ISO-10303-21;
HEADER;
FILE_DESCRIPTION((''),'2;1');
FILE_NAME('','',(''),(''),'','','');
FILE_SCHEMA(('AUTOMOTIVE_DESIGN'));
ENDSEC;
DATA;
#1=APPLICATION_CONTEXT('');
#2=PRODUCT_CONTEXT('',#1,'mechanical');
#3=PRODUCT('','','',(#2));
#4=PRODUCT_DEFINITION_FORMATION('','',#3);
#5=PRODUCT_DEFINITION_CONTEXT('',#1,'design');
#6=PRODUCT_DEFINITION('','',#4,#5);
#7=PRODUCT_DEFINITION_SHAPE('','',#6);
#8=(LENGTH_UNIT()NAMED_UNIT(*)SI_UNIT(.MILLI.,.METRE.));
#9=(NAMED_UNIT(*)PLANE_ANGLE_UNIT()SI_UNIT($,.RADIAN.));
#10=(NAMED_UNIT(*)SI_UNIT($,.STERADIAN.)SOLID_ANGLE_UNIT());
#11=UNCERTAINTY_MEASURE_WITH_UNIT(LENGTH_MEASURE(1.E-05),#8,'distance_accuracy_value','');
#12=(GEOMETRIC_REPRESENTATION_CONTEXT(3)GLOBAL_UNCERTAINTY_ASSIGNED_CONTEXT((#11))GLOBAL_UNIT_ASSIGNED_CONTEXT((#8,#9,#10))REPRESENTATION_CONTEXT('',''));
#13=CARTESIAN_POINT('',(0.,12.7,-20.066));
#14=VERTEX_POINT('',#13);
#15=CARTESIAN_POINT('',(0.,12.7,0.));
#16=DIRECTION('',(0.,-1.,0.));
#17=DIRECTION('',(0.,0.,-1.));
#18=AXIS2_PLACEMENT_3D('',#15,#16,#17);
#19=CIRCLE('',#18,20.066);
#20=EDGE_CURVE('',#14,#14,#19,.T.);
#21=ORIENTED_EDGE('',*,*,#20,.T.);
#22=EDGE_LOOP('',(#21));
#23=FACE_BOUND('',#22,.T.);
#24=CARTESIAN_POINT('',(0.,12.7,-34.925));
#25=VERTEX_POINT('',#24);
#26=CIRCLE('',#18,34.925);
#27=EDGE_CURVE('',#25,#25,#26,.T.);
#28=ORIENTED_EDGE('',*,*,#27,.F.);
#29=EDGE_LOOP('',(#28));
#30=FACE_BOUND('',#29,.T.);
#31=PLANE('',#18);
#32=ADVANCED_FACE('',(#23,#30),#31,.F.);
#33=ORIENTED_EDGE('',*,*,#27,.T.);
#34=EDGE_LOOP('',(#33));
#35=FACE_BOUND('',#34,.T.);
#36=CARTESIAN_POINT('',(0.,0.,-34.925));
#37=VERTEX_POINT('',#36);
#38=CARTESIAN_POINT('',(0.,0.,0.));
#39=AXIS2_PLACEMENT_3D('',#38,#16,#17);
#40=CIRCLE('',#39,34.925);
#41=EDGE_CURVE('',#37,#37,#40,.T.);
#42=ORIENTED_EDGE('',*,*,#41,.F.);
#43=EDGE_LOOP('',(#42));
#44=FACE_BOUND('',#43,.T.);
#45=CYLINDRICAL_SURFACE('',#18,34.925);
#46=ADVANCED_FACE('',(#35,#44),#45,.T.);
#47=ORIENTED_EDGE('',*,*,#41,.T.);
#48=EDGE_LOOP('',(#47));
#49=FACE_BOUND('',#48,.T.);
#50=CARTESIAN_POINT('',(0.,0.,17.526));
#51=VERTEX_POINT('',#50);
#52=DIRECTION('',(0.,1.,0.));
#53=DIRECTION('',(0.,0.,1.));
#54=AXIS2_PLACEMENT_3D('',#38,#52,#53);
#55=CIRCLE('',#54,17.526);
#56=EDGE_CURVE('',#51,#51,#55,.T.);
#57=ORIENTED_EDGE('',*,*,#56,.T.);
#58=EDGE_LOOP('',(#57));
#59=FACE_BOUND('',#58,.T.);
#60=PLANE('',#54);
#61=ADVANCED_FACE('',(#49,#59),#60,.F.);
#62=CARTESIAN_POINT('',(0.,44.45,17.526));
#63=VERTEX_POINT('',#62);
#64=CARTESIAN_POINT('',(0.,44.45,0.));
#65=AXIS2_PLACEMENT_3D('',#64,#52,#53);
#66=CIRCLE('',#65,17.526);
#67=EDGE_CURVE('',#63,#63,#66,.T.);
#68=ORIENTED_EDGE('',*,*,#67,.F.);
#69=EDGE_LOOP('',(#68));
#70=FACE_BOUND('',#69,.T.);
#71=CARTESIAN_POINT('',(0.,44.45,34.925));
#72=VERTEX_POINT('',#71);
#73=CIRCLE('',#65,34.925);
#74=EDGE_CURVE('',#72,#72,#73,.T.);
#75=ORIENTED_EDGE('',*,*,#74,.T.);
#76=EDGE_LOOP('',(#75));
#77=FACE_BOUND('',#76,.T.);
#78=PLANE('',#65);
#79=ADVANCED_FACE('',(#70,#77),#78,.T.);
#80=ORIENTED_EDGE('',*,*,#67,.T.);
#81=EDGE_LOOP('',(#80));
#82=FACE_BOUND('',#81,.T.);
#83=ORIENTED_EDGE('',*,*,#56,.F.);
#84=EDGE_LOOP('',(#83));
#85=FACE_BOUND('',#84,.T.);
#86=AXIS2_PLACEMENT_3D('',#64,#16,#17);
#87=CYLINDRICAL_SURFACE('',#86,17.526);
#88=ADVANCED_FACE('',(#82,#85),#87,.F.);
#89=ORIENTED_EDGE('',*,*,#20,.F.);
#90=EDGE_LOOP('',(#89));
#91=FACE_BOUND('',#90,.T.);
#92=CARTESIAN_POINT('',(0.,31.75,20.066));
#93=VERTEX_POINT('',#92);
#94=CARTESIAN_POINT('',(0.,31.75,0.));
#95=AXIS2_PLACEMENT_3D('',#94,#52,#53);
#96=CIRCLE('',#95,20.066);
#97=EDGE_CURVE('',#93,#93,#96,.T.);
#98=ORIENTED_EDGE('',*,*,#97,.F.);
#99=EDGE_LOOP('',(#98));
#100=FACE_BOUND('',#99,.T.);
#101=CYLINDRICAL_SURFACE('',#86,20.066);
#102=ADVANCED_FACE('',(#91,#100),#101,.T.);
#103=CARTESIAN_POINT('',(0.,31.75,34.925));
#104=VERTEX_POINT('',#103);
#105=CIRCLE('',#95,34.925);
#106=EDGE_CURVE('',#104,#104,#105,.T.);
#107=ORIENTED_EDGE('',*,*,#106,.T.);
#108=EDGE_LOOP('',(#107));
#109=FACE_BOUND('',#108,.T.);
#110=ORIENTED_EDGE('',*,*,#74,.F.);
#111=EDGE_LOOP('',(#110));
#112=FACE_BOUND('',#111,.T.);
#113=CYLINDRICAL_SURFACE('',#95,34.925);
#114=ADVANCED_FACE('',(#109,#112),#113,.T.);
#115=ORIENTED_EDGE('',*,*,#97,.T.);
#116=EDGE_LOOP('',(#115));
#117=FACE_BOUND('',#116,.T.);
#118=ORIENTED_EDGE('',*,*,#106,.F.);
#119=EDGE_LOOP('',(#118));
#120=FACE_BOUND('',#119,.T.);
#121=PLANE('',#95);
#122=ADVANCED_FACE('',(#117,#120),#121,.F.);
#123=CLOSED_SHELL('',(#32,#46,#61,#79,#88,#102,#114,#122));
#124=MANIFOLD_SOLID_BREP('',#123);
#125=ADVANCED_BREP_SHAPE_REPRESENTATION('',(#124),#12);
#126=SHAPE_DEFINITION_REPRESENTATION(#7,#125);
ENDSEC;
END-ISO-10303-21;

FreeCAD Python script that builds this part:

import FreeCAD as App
import Part
import Sketcher
from FreeCAD import Vector
Q = App.Units.Quantity

doc = App.newDocument("Part")
body = doc.addObject("PartDesign::Body", "Body")

# Sketch on XZ plane
sketch1 = body.newObject("Sketcher::SketchObject", "Sketch")
sketch1.AttachmentSupport = (doc.getObject("XZ_Plane"), [""])
sketch1.MapMode = "FlatFace"
sketch1.addGeometry([
    Part.Circle(Vector(0, 0, 0), Vector(0, 0, 1), 20),
    Part.Circle(Vector(0, 0, 0), Vector(0, 0, 1), 18),
], False)
sketch1.addConstraint([
    Sketcher.Constraint("Coincident", 0, 3, -1, 1),
    Sketcher.Constraint("Coincident", 1, 3, -1, 1),
    Sketcher.Constraint("Diameter", 0, Q("1.58 in")),
    Sketcher.Constraint("Diameter", 1, Q("1.38 in")),
])
pad1 = body.newObject("PartDesign::Pad", "Pad")
pad1.Profile = sketch1
pad1.Length = Q("1.75 in")
pad1.Reversed = True

# Sketch on XZ plane
sketch2 = body.newObject("Sketcher::SketchObject", "Sketch001")
sketch2.AttachmentSupport = (doc.getObject("XZ_Plane"), [""])
sketch2.MapMode = "FlatFace"
sketch2.AttachmentOffset = App.Placement(Vector(0, 0, -1.25 * 25.4), App.Rotation())
sketch2.addGeometry([
    Part.Circle(Vector(0, 0, 0), Vector(0, 0, 1), 35),
    Part.Circle(Vector(0, 0, 0), Vector(0, 0, 1), 18),
], False)
sketch2.addConstraint([
    Sketcher.Constraint("Coincident", 0, 3, -1, 1),
    Sketcher.Constraint("Coincident", 1, 3, -1, 1),
    Sketcher.Constraint("Diameter", 0, Q("2.75 in")),
    Sketcher.Constraint("Diameter", 1, Q("1.38 in")),
])
pad2 = body.newObject("PartDesign::Pad", "Pad001")
pad2.Profile = sketch2
pad2.Length = Q("0.5 in")
pad2.Reversed = True

# Sketch on XZ plane
sketch3 = body.newObject("Sketcher::SketchObject", "Sketch002")
sketch3.AttachmentSupport = (doc.getObject("XZ_Plane"), [""])
sketch3.MapMode = "FlatFace"
sketch3.addGeometry([
    Part.Circle(Vector(0, 0, 0), Vector(0, 0, 1), 35),
    Part.Circle(Vector(0, 0, 0), Vector(0, 0, 1), 18),
], False)
sketch3.addConstraint([
    Sketcher.Constraint("Coincident", 0, 3, -1, 1),
    Sketcher.Constraint("Coincident", 1, 3, -1, 1),
    Sketcher.Constraint("Diameter", 0, Q("2.75 in")),
    Sketcher.Constraint("Diameter", 1, Q("1.38 in")),
])
pad3 = body.newObject("PartDesign::Pad", "Pad002")
pad3.Profile = sketch3
pad3.Length = Q("0.5 in")
pad3.Reversed = True

doc.recompute()
